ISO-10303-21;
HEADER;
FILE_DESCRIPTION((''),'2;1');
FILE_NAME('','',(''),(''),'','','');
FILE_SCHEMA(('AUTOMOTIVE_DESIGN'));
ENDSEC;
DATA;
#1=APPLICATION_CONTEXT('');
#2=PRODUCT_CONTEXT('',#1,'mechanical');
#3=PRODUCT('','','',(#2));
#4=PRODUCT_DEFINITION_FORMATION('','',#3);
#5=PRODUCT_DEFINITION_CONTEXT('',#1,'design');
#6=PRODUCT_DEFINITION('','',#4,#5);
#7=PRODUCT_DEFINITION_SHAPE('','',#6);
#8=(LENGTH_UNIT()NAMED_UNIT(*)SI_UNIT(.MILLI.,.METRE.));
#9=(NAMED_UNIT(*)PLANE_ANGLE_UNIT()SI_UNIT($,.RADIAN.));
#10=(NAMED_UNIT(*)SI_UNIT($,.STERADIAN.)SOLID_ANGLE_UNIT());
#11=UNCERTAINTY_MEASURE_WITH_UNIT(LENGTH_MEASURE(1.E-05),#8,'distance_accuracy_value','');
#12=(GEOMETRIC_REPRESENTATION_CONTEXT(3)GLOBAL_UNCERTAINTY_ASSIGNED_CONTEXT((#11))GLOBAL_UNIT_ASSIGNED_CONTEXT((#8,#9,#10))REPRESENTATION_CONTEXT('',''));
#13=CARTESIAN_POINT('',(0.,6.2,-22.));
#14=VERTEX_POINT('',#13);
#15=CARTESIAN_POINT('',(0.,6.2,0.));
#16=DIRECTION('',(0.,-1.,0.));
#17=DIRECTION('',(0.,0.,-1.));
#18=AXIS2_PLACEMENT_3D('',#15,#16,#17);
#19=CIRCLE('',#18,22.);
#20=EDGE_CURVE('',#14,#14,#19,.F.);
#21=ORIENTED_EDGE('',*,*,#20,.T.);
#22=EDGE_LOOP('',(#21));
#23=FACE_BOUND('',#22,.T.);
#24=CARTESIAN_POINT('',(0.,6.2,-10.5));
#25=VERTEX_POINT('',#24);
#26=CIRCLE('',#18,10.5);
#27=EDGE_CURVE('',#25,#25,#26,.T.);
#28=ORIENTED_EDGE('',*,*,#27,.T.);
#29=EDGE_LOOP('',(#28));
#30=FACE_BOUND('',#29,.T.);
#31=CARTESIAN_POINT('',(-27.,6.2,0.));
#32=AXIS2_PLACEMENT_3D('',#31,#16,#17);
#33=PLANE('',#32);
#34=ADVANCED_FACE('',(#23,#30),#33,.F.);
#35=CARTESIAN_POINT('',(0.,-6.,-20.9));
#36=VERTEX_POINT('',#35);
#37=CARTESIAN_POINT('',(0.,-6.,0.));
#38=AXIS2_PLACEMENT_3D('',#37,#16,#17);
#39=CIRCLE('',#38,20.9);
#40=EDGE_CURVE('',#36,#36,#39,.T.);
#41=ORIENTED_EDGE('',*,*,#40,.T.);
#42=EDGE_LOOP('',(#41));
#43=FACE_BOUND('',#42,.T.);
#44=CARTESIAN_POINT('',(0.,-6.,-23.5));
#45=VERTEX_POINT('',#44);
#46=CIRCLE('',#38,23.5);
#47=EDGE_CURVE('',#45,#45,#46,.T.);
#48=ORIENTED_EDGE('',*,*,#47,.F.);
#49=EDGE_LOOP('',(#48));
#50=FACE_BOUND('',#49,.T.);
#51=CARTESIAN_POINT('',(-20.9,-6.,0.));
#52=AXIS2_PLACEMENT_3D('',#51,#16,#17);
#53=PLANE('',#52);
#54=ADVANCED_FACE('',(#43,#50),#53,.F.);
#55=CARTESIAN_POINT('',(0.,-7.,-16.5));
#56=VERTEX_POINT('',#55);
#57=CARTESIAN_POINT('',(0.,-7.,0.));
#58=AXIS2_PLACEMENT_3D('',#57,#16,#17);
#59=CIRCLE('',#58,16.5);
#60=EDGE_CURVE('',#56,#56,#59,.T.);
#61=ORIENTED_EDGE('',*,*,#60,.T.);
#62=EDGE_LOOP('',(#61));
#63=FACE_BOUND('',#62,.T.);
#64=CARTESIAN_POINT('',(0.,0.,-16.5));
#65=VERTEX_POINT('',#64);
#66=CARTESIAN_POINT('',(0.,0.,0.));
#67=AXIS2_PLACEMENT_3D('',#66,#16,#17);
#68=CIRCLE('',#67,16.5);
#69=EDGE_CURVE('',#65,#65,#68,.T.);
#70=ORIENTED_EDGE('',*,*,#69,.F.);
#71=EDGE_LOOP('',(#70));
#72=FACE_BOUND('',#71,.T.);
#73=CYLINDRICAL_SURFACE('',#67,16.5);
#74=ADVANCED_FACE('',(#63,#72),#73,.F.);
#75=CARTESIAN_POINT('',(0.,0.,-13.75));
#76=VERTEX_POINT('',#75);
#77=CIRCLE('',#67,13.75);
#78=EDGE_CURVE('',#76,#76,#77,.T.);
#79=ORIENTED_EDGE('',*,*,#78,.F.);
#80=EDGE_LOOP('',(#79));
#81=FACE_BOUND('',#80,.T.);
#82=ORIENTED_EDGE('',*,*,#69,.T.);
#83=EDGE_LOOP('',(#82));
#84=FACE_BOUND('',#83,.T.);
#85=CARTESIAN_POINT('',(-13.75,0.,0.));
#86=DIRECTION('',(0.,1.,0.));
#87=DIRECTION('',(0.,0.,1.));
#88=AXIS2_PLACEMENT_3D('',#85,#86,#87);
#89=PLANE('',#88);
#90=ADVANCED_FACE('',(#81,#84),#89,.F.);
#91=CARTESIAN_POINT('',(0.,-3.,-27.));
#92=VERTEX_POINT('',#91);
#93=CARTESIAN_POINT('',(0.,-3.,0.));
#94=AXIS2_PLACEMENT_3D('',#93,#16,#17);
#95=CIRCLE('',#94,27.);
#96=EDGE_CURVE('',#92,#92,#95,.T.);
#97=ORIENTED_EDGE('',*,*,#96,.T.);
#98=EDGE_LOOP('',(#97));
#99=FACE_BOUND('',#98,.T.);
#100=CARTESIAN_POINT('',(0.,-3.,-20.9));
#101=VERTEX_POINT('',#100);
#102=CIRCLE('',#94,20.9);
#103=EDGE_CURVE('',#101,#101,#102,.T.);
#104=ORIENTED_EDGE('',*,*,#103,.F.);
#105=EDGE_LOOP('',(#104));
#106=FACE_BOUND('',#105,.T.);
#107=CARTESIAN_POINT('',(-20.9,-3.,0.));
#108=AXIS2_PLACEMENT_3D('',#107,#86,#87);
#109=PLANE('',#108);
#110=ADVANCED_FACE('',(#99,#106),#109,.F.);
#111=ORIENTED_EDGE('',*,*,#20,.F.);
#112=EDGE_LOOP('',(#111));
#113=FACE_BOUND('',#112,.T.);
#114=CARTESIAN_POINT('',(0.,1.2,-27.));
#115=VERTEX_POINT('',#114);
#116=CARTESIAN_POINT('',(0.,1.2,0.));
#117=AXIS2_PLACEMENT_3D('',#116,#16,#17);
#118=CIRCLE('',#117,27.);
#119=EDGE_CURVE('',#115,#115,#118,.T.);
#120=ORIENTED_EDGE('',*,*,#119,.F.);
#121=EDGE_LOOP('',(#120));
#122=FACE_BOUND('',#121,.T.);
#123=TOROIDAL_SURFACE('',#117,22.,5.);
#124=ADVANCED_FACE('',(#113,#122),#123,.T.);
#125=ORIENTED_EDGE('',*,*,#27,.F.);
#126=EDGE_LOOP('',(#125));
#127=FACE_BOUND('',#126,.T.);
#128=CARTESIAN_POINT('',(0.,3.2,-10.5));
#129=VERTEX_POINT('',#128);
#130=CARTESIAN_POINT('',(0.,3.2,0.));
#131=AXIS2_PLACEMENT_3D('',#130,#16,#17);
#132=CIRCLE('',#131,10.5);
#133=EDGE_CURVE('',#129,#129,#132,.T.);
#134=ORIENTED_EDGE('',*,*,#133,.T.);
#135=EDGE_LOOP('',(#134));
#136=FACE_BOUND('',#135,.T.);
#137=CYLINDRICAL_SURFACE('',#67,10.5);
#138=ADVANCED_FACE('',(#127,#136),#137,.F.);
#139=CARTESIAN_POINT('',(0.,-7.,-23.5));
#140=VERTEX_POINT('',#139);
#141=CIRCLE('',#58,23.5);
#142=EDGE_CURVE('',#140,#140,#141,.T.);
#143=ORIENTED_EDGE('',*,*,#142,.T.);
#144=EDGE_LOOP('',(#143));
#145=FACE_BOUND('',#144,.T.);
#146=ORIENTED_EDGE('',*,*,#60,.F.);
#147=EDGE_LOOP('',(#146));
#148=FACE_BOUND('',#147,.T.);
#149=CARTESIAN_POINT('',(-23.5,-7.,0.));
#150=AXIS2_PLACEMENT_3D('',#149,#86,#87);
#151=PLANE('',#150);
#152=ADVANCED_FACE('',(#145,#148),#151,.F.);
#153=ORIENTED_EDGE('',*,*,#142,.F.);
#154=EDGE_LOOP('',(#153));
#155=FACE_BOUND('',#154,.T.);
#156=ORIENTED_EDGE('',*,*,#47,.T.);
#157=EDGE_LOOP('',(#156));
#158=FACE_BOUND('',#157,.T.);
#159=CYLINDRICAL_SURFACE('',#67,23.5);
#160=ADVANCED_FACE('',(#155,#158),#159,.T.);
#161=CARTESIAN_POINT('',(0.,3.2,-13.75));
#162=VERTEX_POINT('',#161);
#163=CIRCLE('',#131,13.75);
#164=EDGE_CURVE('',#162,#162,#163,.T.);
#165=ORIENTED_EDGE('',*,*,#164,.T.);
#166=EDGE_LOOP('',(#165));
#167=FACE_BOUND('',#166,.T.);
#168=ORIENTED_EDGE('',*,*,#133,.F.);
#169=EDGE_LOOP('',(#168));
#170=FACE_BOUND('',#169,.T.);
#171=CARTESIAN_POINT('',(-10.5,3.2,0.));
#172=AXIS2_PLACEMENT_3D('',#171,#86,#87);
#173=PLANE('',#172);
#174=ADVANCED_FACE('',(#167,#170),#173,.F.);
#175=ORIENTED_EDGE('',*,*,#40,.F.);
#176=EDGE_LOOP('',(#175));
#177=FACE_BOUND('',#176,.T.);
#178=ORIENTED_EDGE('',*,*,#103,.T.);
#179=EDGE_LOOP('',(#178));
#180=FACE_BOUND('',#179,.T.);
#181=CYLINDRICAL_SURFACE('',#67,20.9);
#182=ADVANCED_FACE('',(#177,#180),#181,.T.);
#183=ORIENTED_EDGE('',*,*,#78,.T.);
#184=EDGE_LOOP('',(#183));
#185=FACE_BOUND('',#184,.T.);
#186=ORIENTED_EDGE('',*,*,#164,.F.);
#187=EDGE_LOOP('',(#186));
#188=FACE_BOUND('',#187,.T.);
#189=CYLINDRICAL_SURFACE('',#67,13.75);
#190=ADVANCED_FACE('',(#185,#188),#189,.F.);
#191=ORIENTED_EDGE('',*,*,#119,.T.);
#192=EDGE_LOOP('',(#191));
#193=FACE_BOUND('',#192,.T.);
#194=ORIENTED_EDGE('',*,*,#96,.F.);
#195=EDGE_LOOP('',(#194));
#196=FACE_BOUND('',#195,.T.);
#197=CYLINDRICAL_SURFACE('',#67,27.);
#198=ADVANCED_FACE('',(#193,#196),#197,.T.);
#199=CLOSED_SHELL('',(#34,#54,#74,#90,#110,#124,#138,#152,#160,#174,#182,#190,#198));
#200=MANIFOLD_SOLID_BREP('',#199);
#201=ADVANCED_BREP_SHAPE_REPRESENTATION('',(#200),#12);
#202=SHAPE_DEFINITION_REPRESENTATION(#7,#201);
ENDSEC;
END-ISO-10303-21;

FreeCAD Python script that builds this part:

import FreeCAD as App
import Part
import Sketcher
from FreeCAD import Vector
Q = App.Units.Quantity


def edges_at(feature, points):
    """Names of the edges that pass closest to the given points."""
    edges = feature.Shape.Edges
    near = lambda p: min(range(len(edges)), key=lambda i: edges[i].distToShape(Part.Vertex(*p))[0])
    return sorted({f"Edge{near(p) + 1}" for p in points})

doc = App.newDocument("Part")
params = doc.addObject("Spreadsheet::Sheet", "Params")
for row, (alias, value) in enumerate([
    ("sketch1_width", "7 mm"),
    ("sketch1_height", "3 mm"),
    ("sketch1_height2", "1 mm"),
    ("sketch1_width2", "16.5 mm"),
    ("sketch1_width3", "6.1 mm"),
    ("revolution_angle", "360 deg"),
    ("fillet_radius", "5 mm"),
], start=1):
    params.set(f"A{row}", alias)
    params.set(f"B{row}", "=" + value)
    params.setAlias(f"B{row}", alias)

body = doc.addObject("PartDesign::Body", "Body")

# Sketch on XY plane
sketch1 = doc.addObject("Sketcher::SketchObject", "Sketch")
body.addObject(sketch1)
sketch1.AttachmentSupport = (doc.XY_Plane, [""])
sketch1.MapMode = "FlatFace"
sketch1.addGeometry([
    Part.LineSegment(Vector(-13.75, 0, 0), Vector(-13.75, 3.2, 0)),  # 0
    Part.LineSegment(Vector(-13.75, 3.2, 0), Vector(-10.5, 3.2, 0)),  # 1
    Part.LineSegment(Vector(-10.5, 3.2, 0), Vector(-10.5, 6.2, 0)),  # 2
    Part.LineSegment(Vector(-10.5, 6.2, 0), Vector(-27, 6.2, 0)),  # 3
    Part.LineSegment(Vector(-27, 6.2, 0), Vector(-27, -3, 0)),  # 4
    Part.LineSegment(Vector(-27, -3, 0), Vector(-20.9, -3, 0)),  # 5
    Part.LineSegment(Vector(-20.9, -3, 0), Vector(-20.9, -6, 0)),  # 6
    Part.LineSegment(Vector(-20.9, -6, 0), Vector(-23.5, -6, 0)),  # 7
    Part.LineSegment(Vector(-23.5, -6, 0), Vector(-23.5, -7, 0)),  # 8
    Part.LineSegment(Vector(-23.5, -7, 0), Vector(-16.5, -7, 0)),  # 9
    Part.LineSegment(Vector(-16.5, -7, 0), Vector(-16.5, 0, 0)),  # 10
    Part.LineSegment(Vector(-16.5, 0, 0), Vector(-13.75, 0, 0)),  # 11
], False)
sketch1.addConstraint([
    Sketcher.Constraint("Coincident", 0, 2, 1, 1),
    Sketcher.Constraint("Coincident", 1, 2, 2, 1),
    Sketcher.Constraint("Coincident", 2, 2, 3, 1),
    Sketcher.Constraint("Coincident", 3, 2, 4, 1),
    Sketcher.Constraint("Coincident", 4, 2, 5, 1),
    Sketcher.Constraint("Coincident", 5, 2, 6, 1),
    Sketcher.Constraint("Coincident", 6, 2, 7, 1),
    Sketcher.Constraint("Coincident", 7, 2, 8, 1),
    Sketcher.Constraint("Coincident", 8, 2, 9, 1),
    Sketcher.Constraint("Coincident", 9, 2, 10, 1),
    Sketcher.Constraint("Coincident", 10, 2, 11, 1),
    Sketcher.Constraint("Coincident", 11, 2, 0, 1),
    Sketcher.Constraint("Vertical", 0),
    Sketcher.Constraint("Horizontal", 1),
    Sketcher.Constraint("Vertical", 2),
    Sketcher.Constraint("Horizontal", 3),
    Sketcher.Constraint("Vertical", 4),
    Sketcher.Constraint("Horizontal", 5),
    Sketcher.Constraint("Vertical", 6),
    Sketcher.Constraint("Horizontal", 7),
    Sketcher.Constraint("Vertical", 8),
    Sketcher.Constraint("Horizontal", 9),
    Sketcher.Constraint("Vertical", 10),
    Sketcher.Constraint("Horizontal", 11),
    Sketcher.Constraint("PointOnObject", 10, 2, -1),
    Sketcher.Constraint("Equal", 2, 6),
    Sketcher.Constraint("Equal", 9, 10),
    Sketcher.Constraint("DistanceX", 9, 1, 9, 2, Q("7 mm")),
    Sketcher.Constraint("DistanceY", 2, 1, 2, 2, Q("3 mm")),
    Sketcher.Constraint("DistanceY", 8, 2, 8, 1, Q("1 mm")),
    Sketcher.Constraint("DistanceX", 3, 2, 3, 1, Q("16.5 mm")),
    Sketcher.Constraint("DistanceX", 5, 1, 5, 2, Q("6.1 mm")),
    Sketcher.Constraint("DistanceX", 7, 2, 7, 1, Q("2.6 mm")),
    Sketcher.Constraint("DistanceY", 0, 1, 0, 2, Q("3.2 mm")),
    Sketcher.Constraint("DistanceX", 3, 2, -1, 1, Q("27 mm")),
    Sketcher.Constraint("DistanceX", 1, 1, 1, 2, Q("3.25 mm")),
])
sketch1.setExpression("Constraints[27]", "Params.sketch1_width")
sketch1.setExpression("Constraints[28]", "Params.sketch1_height")
sketch1.setExpression("Constraints[29]", "Params.sketch1_height2")
sketch1.setExpression("Constraints[30]", "Params.sketch1_width2")
sketch1.setExpression("Constraints[31]", "Params.sketch1_width3")
revolution = doc.addObject("PartDesign::Revolution", "Revolution")
body.addObject(revolution)
revolution.Profile = sketch1
revolution.ReferenceAxis = (sketch1, ["V_Axis"])
revolution.setExpression("Angle", "Params.revolution_angle")
doc.recompute()

fillet = doc.addObject("PartDesign::Fillet", "Fillet")
body.addObject(fillet)
fillet.Base = (revolution, edges_at(revolution, [(0, 6.2, 27)]))
fillet.setExpression("Radius", "Params.fillet_radius")

doc.recompute()
